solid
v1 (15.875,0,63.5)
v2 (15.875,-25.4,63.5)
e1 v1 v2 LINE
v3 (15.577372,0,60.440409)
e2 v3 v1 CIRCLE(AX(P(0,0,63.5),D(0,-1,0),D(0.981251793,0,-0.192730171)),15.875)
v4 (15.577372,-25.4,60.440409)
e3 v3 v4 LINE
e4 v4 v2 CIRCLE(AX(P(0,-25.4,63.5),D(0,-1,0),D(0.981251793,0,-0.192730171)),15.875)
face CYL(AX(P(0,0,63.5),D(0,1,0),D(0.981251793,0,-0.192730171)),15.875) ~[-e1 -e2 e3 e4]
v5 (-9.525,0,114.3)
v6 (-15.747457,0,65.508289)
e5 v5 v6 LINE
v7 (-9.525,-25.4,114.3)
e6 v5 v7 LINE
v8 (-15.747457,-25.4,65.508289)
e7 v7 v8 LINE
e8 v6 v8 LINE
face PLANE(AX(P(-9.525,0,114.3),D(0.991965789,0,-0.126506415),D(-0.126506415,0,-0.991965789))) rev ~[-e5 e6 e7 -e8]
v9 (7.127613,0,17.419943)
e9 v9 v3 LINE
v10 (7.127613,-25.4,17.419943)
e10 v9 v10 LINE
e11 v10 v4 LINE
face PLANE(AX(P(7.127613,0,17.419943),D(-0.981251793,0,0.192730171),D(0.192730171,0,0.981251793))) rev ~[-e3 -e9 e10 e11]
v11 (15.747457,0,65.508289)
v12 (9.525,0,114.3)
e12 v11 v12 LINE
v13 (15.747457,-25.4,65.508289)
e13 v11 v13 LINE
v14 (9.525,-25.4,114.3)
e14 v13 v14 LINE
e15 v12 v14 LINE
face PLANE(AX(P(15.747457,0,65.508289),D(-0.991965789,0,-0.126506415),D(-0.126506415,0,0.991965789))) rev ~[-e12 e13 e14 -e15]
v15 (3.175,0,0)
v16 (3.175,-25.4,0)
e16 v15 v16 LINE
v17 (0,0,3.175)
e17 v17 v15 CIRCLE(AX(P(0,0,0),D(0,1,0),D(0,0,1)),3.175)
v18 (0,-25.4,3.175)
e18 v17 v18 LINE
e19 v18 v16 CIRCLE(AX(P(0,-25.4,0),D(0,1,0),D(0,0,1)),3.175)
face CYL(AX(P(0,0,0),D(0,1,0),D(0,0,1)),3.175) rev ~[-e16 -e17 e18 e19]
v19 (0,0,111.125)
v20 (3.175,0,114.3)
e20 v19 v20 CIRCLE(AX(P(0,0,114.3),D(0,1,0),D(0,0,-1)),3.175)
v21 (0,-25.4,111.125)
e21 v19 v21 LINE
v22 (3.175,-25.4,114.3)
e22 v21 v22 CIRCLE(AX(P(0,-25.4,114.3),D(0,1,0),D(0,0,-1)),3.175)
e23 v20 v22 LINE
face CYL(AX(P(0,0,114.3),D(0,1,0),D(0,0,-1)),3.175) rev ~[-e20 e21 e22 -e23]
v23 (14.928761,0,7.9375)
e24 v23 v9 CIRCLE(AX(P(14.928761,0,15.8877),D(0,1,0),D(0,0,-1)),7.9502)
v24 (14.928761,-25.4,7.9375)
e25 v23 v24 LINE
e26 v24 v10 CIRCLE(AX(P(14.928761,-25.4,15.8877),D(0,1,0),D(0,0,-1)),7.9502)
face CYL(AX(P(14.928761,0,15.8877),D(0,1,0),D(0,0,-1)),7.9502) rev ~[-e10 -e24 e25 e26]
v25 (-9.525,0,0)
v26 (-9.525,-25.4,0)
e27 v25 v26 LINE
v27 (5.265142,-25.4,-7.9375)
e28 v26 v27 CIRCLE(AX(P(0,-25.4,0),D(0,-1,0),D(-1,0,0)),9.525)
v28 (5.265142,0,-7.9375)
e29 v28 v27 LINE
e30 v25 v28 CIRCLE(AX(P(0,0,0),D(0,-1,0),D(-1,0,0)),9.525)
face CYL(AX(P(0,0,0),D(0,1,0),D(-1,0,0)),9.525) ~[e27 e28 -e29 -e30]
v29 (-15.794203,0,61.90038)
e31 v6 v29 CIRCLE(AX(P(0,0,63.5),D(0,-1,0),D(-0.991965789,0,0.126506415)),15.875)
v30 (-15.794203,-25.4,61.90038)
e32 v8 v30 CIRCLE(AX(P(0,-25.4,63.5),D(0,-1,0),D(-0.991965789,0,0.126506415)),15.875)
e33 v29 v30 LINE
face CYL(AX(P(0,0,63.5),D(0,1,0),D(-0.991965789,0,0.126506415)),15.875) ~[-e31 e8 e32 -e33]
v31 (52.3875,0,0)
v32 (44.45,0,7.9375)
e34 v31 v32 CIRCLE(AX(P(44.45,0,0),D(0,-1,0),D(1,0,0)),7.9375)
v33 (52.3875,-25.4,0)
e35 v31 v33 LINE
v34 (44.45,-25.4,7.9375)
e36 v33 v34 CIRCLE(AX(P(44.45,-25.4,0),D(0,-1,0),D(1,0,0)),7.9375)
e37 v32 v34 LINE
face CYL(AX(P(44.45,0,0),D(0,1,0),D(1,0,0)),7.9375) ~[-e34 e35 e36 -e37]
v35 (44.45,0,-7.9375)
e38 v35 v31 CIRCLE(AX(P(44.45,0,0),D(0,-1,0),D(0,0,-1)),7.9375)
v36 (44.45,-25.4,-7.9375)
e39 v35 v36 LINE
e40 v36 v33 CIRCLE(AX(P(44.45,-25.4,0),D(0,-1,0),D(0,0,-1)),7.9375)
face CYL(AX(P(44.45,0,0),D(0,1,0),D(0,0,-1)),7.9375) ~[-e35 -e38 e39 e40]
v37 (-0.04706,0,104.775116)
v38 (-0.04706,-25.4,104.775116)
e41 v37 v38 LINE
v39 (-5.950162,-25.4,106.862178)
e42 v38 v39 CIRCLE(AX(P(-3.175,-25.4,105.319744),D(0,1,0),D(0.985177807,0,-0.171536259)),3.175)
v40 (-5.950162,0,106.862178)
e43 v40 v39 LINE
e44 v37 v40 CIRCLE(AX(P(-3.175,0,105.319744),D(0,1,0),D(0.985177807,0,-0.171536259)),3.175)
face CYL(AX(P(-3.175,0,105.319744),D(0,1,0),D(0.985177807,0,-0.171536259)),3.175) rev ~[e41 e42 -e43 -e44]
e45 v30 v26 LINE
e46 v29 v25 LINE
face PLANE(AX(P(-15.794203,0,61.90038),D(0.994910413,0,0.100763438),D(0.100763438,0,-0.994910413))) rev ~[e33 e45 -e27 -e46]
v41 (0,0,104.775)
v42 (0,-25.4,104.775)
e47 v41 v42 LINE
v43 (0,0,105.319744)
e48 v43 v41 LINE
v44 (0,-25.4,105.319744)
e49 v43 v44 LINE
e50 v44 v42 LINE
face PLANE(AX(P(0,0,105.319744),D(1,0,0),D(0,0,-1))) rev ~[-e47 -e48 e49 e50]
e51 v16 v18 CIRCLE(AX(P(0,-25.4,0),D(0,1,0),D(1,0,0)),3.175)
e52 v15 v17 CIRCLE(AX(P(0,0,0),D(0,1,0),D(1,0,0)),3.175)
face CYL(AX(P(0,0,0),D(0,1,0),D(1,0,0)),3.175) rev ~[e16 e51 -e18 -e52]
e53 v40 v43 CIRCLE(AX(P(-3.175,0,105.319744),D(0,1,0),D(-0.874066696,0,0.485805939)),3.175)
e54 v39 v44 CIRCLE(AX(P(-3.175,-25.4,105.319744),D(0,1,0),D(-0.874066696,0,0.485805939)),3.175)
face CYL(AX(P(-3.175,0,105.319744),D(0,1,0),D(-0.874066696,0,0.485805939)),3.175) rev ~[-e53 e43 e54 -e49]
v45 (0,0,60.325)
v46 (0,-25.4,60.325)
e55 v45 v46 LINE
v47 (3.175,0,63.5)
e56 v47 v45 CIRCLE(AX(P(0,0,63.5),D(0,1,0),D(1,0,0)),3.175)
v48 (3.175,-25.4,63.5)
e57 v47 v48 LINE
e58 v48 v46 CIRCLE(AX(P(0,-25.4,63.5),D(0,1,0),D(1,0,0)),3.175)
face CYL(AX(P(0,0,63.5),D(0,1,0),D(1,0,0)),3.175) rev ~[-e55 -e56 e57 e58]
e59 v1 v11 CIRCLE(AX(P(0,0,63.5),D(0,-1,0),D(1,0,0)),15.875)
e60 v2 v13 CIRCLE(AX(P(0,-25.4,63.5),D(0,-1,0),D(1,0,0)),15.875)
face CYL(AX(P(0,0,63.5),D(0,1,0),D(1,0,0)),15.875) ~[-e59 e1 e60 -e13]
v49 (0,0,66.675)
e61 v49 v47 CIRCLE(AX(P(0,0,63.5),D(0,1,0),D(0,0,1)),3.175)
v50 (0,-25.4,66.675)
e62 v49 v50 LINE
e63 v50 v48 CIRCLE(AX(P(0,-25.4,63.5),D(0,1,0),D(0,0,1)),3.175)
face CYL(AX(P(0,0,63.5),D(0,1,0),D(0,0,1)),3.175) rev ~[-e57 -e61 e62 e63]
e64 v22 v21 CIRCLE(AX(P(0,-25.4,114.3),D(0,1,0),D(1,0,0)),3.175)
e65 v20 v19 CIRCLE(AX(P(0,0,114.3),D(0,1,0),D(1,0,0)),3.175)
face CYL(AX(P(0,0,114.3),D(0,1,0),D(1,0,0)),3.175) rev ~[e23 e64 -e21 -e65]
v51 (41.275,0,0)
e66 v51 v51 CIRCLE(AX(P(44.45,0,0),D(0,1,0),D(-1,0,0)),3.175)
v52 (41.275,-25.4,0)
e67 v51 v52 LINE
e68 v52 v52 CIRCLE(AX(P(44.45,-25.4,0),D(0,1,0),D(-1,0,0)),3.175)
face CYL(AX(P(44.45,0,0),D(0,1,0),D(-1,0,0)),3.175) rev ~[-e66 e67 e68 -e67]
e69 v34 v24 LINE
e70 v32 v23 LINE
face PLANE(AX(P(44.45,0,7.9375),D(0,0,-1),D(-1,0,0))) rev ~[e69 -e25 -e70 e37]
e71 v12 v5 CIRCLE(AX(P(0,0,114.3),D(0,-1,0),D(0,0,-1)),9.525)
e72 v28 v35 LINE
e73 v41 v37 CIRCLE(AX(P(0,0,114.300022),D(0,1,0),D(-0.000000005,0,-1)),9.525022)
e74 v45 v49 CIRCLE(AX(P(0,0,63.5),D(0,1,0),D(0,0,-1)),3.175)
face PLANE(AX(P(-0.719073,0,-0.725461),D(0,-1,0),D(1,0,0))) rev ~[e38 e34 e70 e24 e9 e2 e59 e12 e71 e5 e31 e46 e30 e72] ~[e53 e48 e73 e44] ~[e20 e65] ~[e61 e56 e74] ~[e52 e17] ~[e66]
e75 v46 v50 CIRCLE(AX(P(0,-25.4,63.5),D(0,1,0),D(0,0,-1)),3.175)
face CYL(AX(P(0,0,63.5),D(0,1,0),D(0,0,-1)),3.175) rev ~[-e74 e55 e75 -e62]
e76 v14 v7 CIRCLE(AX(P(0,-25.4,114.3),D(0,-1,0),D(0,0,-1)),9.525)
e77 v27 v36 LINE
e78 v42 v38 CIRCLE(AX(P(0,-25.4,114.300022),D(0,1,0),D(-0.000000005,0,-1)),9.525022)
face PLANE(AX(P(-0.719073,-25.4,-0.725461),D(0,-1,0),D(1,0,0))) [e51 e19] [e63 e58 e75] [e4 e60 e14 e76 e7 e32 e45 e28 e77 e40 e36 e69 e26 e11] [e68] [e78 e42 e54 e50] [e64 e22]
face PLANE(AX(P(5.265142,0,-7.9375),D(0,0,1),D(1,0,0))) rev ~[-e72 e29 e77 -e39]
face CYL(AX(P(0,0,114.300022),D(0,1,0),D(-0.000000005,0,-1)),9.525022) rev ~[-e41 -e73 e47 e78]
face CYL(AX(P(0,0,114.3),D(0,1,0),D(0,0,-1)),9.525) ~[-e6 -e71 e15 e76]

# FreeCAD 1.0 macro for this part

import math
import FreeCAD as App
import Part
import Sketcher
from FreeCAD import Vector
Q = App.Units.Quantity

doc = App.newDocument("Part")
body = doc.addObject("PartDesign::Body", "Body")

# Sketch on XZ plane
sketch1 = doc.addObject("Sketcher::SketchObject", "Sketch")
body.addObject(sketch1)
sketch1.AttachmentSupport = (doc.XZ_Plane, [""])
sketch1.MapMode = "FlatFace"
sketch1.addGeometry(Part.ArcOfCircle(Part.Circle(Vector(0, 0, 0), Vector(0, 0, 1), 9.525), math.radians(180), math.radians(304)), False)
sketch1.addGeometry(Part.LineSegment(Vector(5.265, -7.938, 0), Vector(44.45, -7.938, 0)), False)
sketch1.addGeometry(Part.ArcOfCircle(Part.Circle(Vector(44.45, 0, 0), Vector(0, 0, 1), 7.938), math.radians(-90), math.radians(0)), False)
sketch1.addGeometry(Part.ArcOfCircle(Part.Circle(Vector(44.45, 0, 0), Vector(0, 0, 1), 7.938), math.radians(0), math.radians(90)), False)
sketch1.addGeometry(Part.LineSegment(Vector(44.45, 7.938, 0), Vector(14.929, 7.938, 0)), False)
sketch1.addGeometry(Part.ArcOfCircle(Part.Circle(Vector(14.929, 15.888, 0), Vector(0, 0, 1), 7.95), math.radians(169), math.radians(270)), False)
sketch1.addGeometry(Part.LineSegment(Vector(7.128, 17.42, 0), Vector(15.577, 60.44, 0)), False)
sketch1.addGeometry(Part.ArcOfCircle(Part.Circle(Vector(0, 63.5, 0), Vector(0, 0, 1), 15.875), math.radians(-11.11), math.radians(0)), False)
sketch1.addGeometry(Part.ArcOfCircle(Part.Circle(Vector(0, 63.5, 0), Vector(0, 0, 1), 15.875), math.radians(0), math.radians(7.27)), False)
sketch1.addGeometry(Part.LineSegment(Vector(15.747, 65.508, 0), Vector(9.525, 114.3, 0)), False)
sketch1.addGeometry(Part.ArcOfCircle(Part.Circle(Vector(0, 114.3, 0), Vector(0, 0, 1), 9.525), math.radians(0), math.radians(180)), False)
sketch1.addGeometry(Part.LineSegment(Vector(-9.525, 114.3, 0), Vector(-15.747, 65.508, 0)), False)
sketch1.addGeometry(Part.ArcOfCircle(Part.Circle(Vector(0, 63.5, 0), Vector(0, 0, 1), 15.875), math.radians(172.73), math.radians(185.78)), False)
sketch1.addGeometry(Part.LineSegment(Vector(-15.794, 61.9, 0), Vector(-9.525, 0, 0)), False)
sketch1.addGeometry(Part.ArcOfCircle(Part.Circle(Vector(0, 0, 0), Vector(0, 0, 1), 3.175), math.radians(90), math.radians(360)), False)
sketch1.addGeometry(Part.ArcOfCircle(Part.Circle(Vector(0, 0, 0), Vector(0, 0, 1), 3.175), math.radians(0), math.radians(90)), False)
sketch1.addGeometry(Part.Circle(Vector(44.45, 0, 0), Vector(0, 0, 1), 3.175), False)
sketch1.addGeometry(Part.ArcOfCircle(Part.Circle(Vector(0, 63.5, 0), Vector(0, 0, 1), 3.175), math.radians(90), math.radians(270)), False)
sketch1.addGeometry(Part.ArcOfCircle(Part.Circle(Vector(0, 63.5, 0), Vector(0, 0, 1), 3.175), math.radians(0), math.radians(90)), False)
sketch1.addGeometry(Part.ArcOfCircle(Part.Circle(Vector(0, 63.5, 0), Vector(0, 0, 1), 3.175), math.radians(-90), math.radians(0)), False)
sketch1.addGeometry(Part.ArcOfCircle(Part.Circle(Vector(0, 114.3, 0), Vector(0, 0, 1), 9.525), math.radians(-90.28), math.radians(-90)), False)
sketch1.addGeometry(Part.ArcOfCircle(Part.Circle(Vector(-3.175, 105.32, 0), Vector(0, 0, 1), 3.175), math.radians(151), math.radians(350)), False)
sketch1.addGeometry(Part.ArcOfCircle(Part.Circle(Vector(-3.175, 105.32, 0), Vector(0, 0, 1), 3.175), math.radians(0), math.radians(151)), False)
sketch1.addGeometry(Part.LineSegment(Vector(0, 105.32, 0), Vector(0, 104.775, 0)), False)
sketch1.addGeometry(Part.ArcOfCircle(Part.Circle(Vector(0, 114.3, 0), Vector(0, 0, 1), 3.175), math.radians(0), math.radians(270)), False)
sketch1.addGeometry(Part.ArcOfCircle(Part.Circle(Vector(0, 114.3, 0), Vector(0, 0, 1), 3.175), math.radians(-90), math.radians(0)), False)
sketch1.addConstraint(Sketcher.Constraint("Coincident", 0, 2, 1, 1))
sketch1.addConstraint(Sketcher.Constraint("Tangent", 1, 2, 2, 1))
sketch1.addConstraint(Sketcher.Constraint("Tangent", 2, 2, 3, 1))
sketch1.addConstraint(Sketcher.Constraint("Tangent", 3, 2, 4, 1))
sketch1.addConstraint(Sketcher.Constraint("Tangent", 4, 2, 5, 2))
sketch1.addConstraint(Sketcher.Constraint("Tangent", 5, 1, 6, 1))
sketch1.addConstraint(Sketcher.Constraint("Tangent", 6, 2, 7, 1))
sketch1.addConstraint(Sketcher.Constraint("Tangent", 7, 2, 8, 1))
sketch1.addConstraint(Sketcher.Constraint("Tangent", 8, 2, 9, 1))
sketch1.addConstraint(Sketcher.Constraint("Coincident", 9, 2, 10, 1))
sketch1.addConstraint(Sketcher.Constraint("Coincident", 10, 2, 11, 1))
sketch1.addConstraint(Sketcher.Constraint("Tangent", 11, 2, 12, 1))
sketch1.addConstraint(Sketcher.Constraint("Tangent", 12, 2, 13, 1))
sketch1.addConstraint(Sketcher.Constraint("Coincident", 13, 2, 0, 1))
sketch1.addConstraint(Sketcher.Constraint("Tangent", 14, 1, 15, 2))
sketch1.addConstraint(Sketcher.Constraint("Coincident", 15, 1, 14, 2))
sketch1.addConstraint(Sketcher.Constraint("Tangent", 17, 1, 18, 2))
sketch1.addConstraint(Sketcher.Constraint("Tangent", 18, 1, 19, 2))
sketch1.addConstraint(Sketcher.Constraint("Tangent", 19, 1, 17, 2))
sketch1.addConstraint(Sketcher.Constraint("Coincident", 20, 1, 21, 2))
sketch1.addConstraint(Sketcher.Constraint("Tangent", 21, 1, 22, 2))
sketch1.addConstraint(Sketcher.Constraint("Tangent", 22, 1, 23, 1))
sketch1.addConstraint(Sketcher.Constraint("Coincident", 23, 2, 20, 2))
sketch1.addConstraint(Sketcher.Constraint("Tangent", 24, 1, 25, 2))
sketch1.addConstraint(Sketcher.Constraint("Coincident", 25, 1, 24, 2))
sketch1.addConstraint(Sketcher.Constraint("Horizontal", 1))
sketch1.addConstraint(Sketcher.Constraint("Horizontal", 4))
sketch1.addConstraint(Sketcher.Constraint("Vertical", 23))
sketch1.addConstraint(Sketcher.Constraint("Coincident", 0, 3, -1, 1))
sketch1.addConstraint(Sketcher.Constraint("Coincident", 14, 3, -1, 1))
sketch1.addConstraint(Sketcher.Constraint("Coincident", 12, 3, 7, 3))
sketch1.addConstraint(Sketcher.Constraint("Coincident", 16, 3, 2, 3))
sketch1.addConstraint(Sketcher.Constraint("Coincident", 17, 3, 7, 3))
sketch1.addConstraint(Sketcher.Constraint("Coincident", 24, 3, 10, 3))
sketch1.addConstraint(Sketcher.Constraint("Equal", 2, 3))
sketch1.addConstraint(Sketcher.Constraint("Equal", 7, 8))
sketch1.addConstraint(Sketcher.Constraint("Equal", 0, 10))
sketch1.addConstraint(Sketcher.Constraint("Equal", 8, 12))
sketch1.addConstraint(Sketcher.Constraint("Equal", 15, 16))
sketch1.addConstraint(Sketcher.Constraint("Equal", 16, 17))
sketch1.addConstraint(Sketcher.Constraint("Equal", 19, 21))
sketch1.addConstraint(Sketcher.Constraint("Equal", 21, 22))
sketch1.addConstraint(Sketcher.Constraint("Equal", 22, 24))
sketch1.addConstraint(Sketcher.Constraint("Symmetric", 9, 2, 10, 2, -2))
sketch1.addConstraint(Sketcher.Constraint("PointOnObject", 2, 3, -1))
sketch1.addConstraint(Sketcher.Constraint("PointOnObject", 7, 3, -2))
sketch1.addConstraint(Sketcher.Constraint("PointOnObject", 20, 3, -2))
sketch1.addConstraint(Sketcher.Constraint("PointOnObject", 2, 2, -1))
sketch1.addConstraint(Sketcher.Constraint("PointOnObject", 13, 2, -1))
sketch1.addConstraint(Sketcher.Constraint("PointOnObject", 14, 1, -2))
sketch1.addConstraint(Sketcher.Constraint("PointOnObject", 15, 1, -1))
sketch1.addConstraint(Sketcher.Constraint("PointOnObject", 17, 1, -2))
sketch1.addConstraint(Sketcher.Constraint("PointOnObject", 19, 1, -2))
sketch1.addConstraint(Sketcher.Constraint("PointOnObject", 22, 1, -2))
sketch1.addConstraint(Sketcher.Constraint("PointOnObject", 25, 1, -2))
sketch1.addConstraint(Sketcher.Constraint("Horizontal", 19, 3, 7, 2))
sketch1.addConstraint(Sketcher.Constraint("Horizontal", 25, 3, 9, 2))
sketch1.addConstraint(Sketcher.Constraint("Horizontal", 7, 2, 18, 1))
sketch1.addConstraint(Sketcher.Constraint("Horizontal", 10, 2, 24, 1))
sketch1.addConstraint(Sketcher.Constraint("Diameter", 16, Q("0.25 in")))
sketch1.addConstraint(Sketcher.Constraint("Radius", 0, Q("0.375 in")))
sketch1.addConstraint(Sketcher.Constraint("Radius", 2, Q("0.3125 in")))
sketch1.addConstraint(Sketcher.Constraint("Radius", 5, Q("0.313 in")))
sketch1.addConstraint(Sketcher.Constraint("Radius", 7, Q("0.625 in")))
sketch1.addConstraint(Sketcher.Constraint("DistanceY", 7, 3, 10, 3, Q("2 in")))
sketch1.addConstraint(Sketcher.Constraint("DistanceY", -1, 1, 7, 3, Q("2.5 in")))
sketch1.addConstraint(Sketcher.Constraint("DistanceX", -1, 1, 2, 3, Q("1.75 in")))
sketch1.addConstraint(Sketcher.Constraint("DistanceY", -1, 1, 23, 2, Q("4.125 in")))
sketch1.addConstraint(Sketcher.Constraint("Radius", 20, Q("9.525022 mm")))
sketch1.addConstraint(Sketcher.Constraint("DistanceX", 4, 2, 4, 1, Q("29.521239 mm")))
sketch1.addConstraint(Sketcher.Constraint("DistanceX", 21, 1, 20, 1, Q("5.903101 mm")))
sketch1.addConstraint(Sketcher.Constraint("DistanceY", 23, 2, 23, 1, Q("0.544744 mm")))
pad1 = doc.addObject("PartDesign::Pad", "Pad")
body.addObject(pad1)
pad1.Profile = sketch1
pad1.Length = Q("1 in")

doc.recompute()
